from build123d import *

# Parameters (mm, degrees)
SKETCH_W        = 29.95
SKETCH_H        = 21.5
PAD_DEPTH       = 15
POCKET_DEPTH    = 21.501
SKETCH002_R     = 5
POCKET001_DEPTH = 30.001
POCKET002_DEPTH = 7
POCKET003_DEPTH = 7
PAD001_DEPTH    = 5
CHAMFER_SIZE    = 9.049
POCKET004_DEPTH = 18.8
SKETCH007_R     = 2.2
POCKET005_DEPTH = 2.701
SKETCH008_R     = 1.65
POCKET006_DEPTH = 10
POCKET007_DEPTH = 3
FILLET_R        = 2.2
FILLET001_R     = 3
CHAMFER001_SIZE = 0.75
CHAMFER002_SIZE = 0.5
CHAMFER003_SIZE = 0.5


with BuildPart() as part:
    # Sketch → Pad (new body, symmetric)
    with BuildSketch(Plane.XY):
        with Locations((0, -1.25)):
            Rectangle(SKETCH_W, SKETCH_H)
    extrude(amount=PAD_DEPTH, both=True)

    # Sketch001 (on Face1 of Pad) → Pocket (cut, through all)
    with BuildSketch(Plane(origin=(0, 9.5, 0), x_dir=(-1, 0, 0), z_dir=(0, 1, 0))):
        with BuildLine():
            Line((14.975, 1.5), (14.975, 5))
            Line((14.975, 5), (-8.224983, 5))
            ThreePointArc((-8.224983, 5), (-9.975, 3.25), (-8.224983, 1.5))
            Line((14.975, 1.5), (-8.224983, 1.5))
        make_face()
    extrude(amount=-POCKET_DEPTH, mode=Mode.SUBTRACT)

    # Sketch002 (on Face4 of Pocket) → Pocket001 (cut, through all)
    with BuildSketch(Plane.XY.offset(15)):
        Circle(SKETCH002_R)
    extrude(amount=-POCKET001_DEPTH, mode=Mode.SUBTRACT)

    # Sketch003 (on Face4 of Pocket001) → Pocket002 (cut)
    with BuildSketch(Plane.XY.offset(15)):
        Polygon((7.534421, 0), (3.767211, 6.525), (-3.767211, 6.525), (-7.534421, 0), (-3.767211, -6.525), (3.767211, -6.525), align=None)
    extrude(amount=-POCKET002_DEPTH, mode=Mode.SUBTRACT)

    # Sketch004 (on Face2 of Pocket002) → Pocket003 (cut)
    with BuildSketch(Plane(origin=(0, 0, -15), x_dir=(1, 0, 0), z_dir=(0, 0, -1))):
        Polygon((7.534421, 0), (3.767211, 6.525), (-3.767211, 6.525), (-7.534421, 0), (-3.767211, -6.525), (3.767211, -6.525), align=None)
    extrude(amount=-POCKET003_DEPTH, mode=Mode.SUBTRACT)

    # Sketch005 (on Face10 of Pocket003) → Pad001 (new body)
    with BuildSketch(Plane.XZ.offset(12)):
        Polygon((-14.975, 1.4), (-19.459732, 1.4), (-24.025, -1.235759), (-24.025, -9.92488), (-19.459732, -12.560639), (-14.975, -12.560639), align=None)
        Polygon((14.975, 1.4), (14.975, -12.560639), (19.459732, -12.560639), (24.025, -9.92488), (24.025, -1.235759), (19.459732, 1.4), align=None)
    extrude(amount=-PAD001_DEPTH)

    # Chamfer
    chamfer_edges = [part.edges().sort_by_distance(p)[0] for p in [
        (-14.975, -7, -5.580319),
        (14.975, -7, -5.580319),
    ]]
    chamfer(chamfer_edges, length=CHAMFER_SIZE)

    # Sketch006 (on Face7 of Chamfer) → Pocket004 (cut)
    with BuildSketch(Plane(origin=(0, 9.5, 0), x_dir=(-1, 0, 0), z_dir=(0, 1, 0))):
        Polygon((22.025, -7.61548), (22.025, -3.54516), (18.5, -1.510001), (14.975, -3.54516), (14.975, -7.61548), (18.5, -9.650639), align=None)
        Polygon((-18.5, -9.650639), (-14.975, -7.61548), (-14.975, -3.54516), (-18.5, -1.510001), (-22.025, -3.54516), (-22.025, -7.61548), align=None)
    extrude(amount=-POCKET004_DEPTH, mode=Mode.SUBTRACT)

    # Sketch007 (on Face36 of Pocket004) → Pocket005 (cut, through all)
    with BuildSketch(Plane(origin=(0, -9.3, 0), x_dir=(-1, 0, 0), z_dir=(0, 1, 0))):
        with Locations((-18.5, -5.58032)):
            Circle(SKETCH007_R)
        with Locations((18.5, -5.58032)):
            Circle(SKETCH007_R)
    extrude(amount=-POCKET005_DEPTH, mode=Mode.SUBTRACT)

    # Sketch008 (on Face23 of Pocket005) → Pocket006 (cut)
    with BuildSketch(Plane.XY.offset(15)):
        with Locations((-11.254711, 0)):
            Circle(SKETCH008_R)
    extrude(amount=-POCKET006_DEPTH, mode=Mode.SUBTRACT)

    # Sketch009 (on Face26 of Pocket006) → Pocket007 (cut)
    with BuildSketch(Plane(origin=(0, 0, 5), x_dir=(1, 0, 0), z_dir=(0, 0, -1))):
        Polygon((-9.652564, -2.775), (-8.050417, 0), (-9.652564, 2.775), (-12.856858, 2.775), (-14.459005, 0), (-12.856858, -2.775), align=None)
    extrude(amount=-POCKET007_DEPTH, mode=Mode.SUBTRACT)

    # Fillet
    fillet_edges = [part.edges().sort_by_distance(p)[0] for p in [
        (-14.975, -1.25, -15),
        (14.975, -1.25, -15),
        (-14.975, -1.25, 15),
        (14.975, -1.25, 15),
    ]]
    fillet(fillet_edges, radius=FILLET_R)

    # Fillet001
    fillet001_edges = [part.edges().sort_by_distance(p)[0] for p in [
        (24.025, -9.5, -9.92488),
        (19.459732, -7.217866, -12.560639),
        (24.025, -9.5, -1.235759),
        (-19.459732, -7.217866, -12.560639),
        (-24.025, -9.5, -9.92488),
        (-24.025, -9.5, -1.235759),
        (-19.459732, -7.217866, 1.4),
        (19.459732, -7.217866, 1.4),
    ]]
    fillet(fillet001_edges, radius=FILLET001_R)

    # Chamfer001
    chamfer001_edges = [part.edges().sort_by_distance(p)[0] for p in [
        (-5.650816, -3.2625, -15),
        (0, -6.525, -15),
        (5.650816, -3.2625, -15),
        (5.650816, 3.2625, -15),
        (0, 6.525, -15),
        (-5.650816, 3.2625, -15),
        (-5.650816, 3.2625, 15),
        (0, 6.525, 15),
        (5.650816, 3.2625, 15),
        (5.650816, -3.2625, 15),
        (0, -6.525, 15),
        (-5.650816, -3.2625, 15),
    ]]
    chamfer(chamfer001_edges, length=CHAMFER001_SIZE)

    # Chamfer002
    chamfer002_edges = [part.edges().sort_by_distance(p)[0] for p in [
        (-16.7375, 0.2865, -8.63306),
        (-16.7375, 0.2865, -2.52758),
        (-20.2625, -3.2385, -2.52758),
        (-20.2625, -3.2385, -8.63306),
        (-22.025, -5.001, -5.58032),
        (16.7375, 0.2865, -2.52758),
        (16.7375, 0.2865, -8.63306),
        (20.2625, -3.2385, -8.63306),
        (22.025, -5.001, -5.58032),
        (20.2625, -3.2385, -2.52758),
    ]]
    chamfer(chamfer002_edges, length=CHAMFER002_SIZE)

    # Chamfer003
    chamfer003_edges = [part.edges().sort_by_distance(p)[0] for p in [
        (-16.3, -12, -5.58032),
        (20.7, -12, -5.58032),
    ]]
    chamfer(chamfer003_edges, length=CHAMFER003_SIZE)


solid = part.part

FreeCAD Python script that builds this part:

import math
import FreeCAD as App
import Part
import Sketcher
Q = App.Units.Quantity


def edges_at(feature, points):
    """Names of the edges that pass closest to the given points."""
    edges = feature.Shape.Edges
    near = lambda p: min(range(len(edges)), key=lambda i: edges[i].distToShape(Part.Vertex(*p))[0])
    return sorted({f"Edge{near(p) + 1}" for p in points})


def add_polygon(sketch, points):
    """Adds a closed chain of lines whose ends are joined by coincident constraints."""
    first, n = sketch.GeometryCount, len(points)
    for a, b in zip(points, points[1:] + points[:1]):
        sketch.addGeometry(Part.LineSegment(App.Vector(*a, 0), App.Vector(*b, 0)), False)
    for i in range(n):
        sketch.addConstraint(Sketcher.Constraint("Coincident", first + i, 2, first + (i + 1) % n, 1))

doc = App.newDocument("Part")
params = doc.addObject("Spreadsheet::Sheet", "Params")
for row, (alias, value) in enumerate([
    ("sketch1_height", "21.5 mm"),
    ("sketch1_width", "29.95 mm"),
    ("pad1_length", "30 mm"),
    ("sketch2_radius", "1.75 mm"),
    ("sketch3_diameter", "10 mm"),
    ("pocket3_length", "7 mm"),
    ("pocket4_length", "7 mm"),
    ("pad2_length", "5 mm"),
    ("chamfer_size", "9.049 mm"),
    ("pocket5_length", "18.8 mm"),
    ("sketch8_diameter", "4.4 mm"),
    ("sketch9_diameter", "3.3 mm"),
    ("pocket7_length", "10 mm"),
    ("pocket8_length", "3 mm"),
    ("fillet_radius", "2.2 mm"),
    ("fillet2_radius", "3 mm"),
    ("chamfer2_size", "0.75 mm"),
    ("chamfer3_size", "0.5 mm"),
    ("chamfer4_size", "0.5 mm"),
], start=1):
    params.set(f"A{row}", alias)
    params.set(f"B{row}", "=" + value)
    params.setAlias(f"B{row}", alias)

body = doc.addObject("PartDesign::Body", "Body")

sketch1 = body.newObject("Sketcher::SketchObject", "Sketch")
sketch1.AttachmentSupport = (doc.getObject("XY_Plane"), [""])
sketch1.MapMode = "FlatFace"
add_polygon(sketch1, [(-15, 10), (-15, -12), (15, -12), (15, 10)])
sketch1.addConstraint([
    Sketcher.Constraint("Vertical", 0),
    Sketcher.Constraint("Horizontal", 1),
    Sketcher.Constraint("Vertical", 2),
    Sketcher.Constraint("Horizontal", 3),
    Sketcher.Constraint("DistanceY", 0, 2, 0, 1, 21.5),
    Sketcher.Constraint("DistanceY", 0, 2, -1, 1, 12.0),
    Sketcher.Constraint("DistanceX", 1, 1, 1, 2, 29.95),
    Sketcher.Constraint("DistanceX", 0, 2, -1, 1, 14.975),
])
sketch1.setExpression("Constraints[8]", "Params.sketch1_height")
sketch1.setExpression("Constraints[10]", "Params.sketch1_width")
pad1 = body.newObject("PartDesign::Pad", "Pad")
pad1.Profile = sketch1
pad1.setExpression("Length", "Params.pad1_length")
pad1.Midplane = True

sketch2 = body.newObject("Sketcher::SketchObject", "Sketch001")
sketch2.AttachmentSupport = (doc.getObject("XZ_Plane"), [""])
sketch2.MapMode = "FlatFace"
sketch2.AttachmentOffset = App.Placement(App.Vector(0, 0, -9.5), App.Rotation())
sketch2.addGeometry([
    Part.LineSegment(App.Vector(-15, 1.5, 0), App.Vector(-15, 5, 0)),
    Part.LineSegment(App.Vector(-15, 5, 0), App.Vector(8.2, 5, 0)),
    Part.ArcOfCircle(Part.Circle(App.Vector(8.2, 3.2, 0), App.Vector(0, 0, 1), 1.8), math.radians(-90), math.radians(90)),
    Part.LineSegment(App.Vector(8.2, 1.5, 0), App.Vector(-15, 1.5, 0)),
], False)
sketch2.addConstraint([
    Sketcher.Constraint("Coincident", 0, 2, 1, 1),
    Sketcher.Constraint("Coincident", 1, 2, 2, 2),
    Sketcher.Constraint("Coincident", 2, 1, 3, 1),
    Sketcher.Constraint("Coincident", 3, 2, 0, 1),
    Sketcher.Constraint("Vertical", 0),
    Sketcher.Constraint("Horizontal", 1),
    Sketcher.Constraint("Horizontal", 3),
    Sketcher.Constraint("Vertical", 1, 2, 2, 1),
    Sketcher.Constraint("Radius", 2, 1.75),
    Sketcher.Constraint("DistanceY", -1, 1, 0, 2, 5.0),
    Sketcher.Constraint("DistanceX", 0, 2, 2, 3, 23.2),
    Sketcher.Constraint("DistanceX", -1, 1, 2, 3, 8.225),
    Sketcher.Constraint("DistanceX", 1, 1, 1, 2, 23.199983),
])
sketch2.setExpression("Constraints[8]", "Params.sketch2_radius")
pocket1 = body.newObject("PartDesign::Pocket", "Pocket")
pocket1.Profile = sketch2
pocket1.Type = "ThroughAll"
pocket1.Reversed = True

sketch3 = body.newObject("Sketcher::SketchObject", "Sketch002")
sketch3.AttachmentSupport = (doc.getObject("XY_Plane"), [""])
sketch3.MapMode = "FlatFace"
sketch3.AttachmentOffset = App.Placement(App.Vector(0, 0, 15), App.Rotation())
sketch3.addGeometry(Part.Circle(App.Vector(0, 0, 0), App.Vector(0, 0, 1), 5), False)
sketch3.addConstraint([
    Sketcher.Constraint("Coincident", 0, 3, -1, 1),
    Sketcher.Constraint("Diameter", 0, 10.0),
])
sketch3.setExpression("Constraints[1]", "Params.sketch3_diameter")
pocket2 = body.newObject("PartDesign::Pocket", "Pocket001")
pocket2.Profile = sketch3
pocket2.Type = "ThroughAll"

sketch4 = body.newObject("Sketcher::SketchObject", "Sketch003")
sketch4.AttachmentSupport = (doc.getObject("XY_Plane"), [""])
sketch4.MapMode = "FlatFace"
sketch4.AttachmentOffset = App.Placement(App.Vector(0, 0, 15), App.Rotation())
add_polygon(sketch4, [(8, 0), (4, 7), (-4, 7), (-8, 0), (-4, -7), (4, -7)])
sketch4.addConstraint([
    Sketcher.Constraint("Horizontal", 1),
    Sketcher.Constraint("Horizontal", 4),
    Sketcher.Constraint("Symmetric", 0, 2, 3, 2, -1, 1),
    Sketcher.Constraint("Symmetric", 2, 2, 5, 2, -1, 1),
    Sketcher.Constraint("PointOnObject", 2, 2, -1),
    Sketcher.Constraint("Parallel", 2, 5),
    Sketcher.Constraint("Vertical", 1, 2, 3, 2),
    Sketcher.Constraint("Angle", 0, Q("119.999997 deg")),
    Sketcher.Constraint("DistanceY", 3, 2, 1, 2, 13.05),
    Sketcher.Constraint("DistanceX", 1, 2, 1, 1, 7.534422),
])
pocket3 = body.newObject("PartDesign::Pocket", "Pocket002")
pocket3.Profile = sketch4
pocket3.setExpression("Length", "Params.pocket3_length")

sketch5 = body.newObject("Sketcher::SketchObject", "Sketch004")
sketch5.AttachmentSupport = (doc.getObject("XY_Plane"), [""])
sketch5.MapMode = "FlatFace"
sketch5.AttachmentOffset = App.Placement(App.Vector(0, 0, -15), App.Rotation())
add_polygon(sketch5, [(8, 0), (4, -7), (-4, -7), (-8, 0), (-4, 7), (4, 7)])
sketch5.addConstraint([
    Sketcher.Constraint("Horizontal", 1),
    Sketcher.Constraint("Horizontal", 4),
    Sketcher.Constraint("Symmetric", 0, 2, 3, 2, -1, 1),
    Sketcher.Constraint("Symmetric", 2, 2, 5, 2, -1, 1),
    Sketcher.Constraint("PointOnObject", 2, 2, -1),
    Sketcher.Constraint("Parallel", 2, 5),
    Sketcher.Constraint("Vertical", 1, 2, 3, 2),
    Sketcher.Constraint("Angle", 0, Q("-119.999997 deg")),
    Sketcher.Constraint("DistanceY", 1, 2, 3, 2, 13.05),
    Sketcher.Constraint("DistanceX", 1, 2, 1, 1, 7.534422),
])
pocket4 = body.newObject("PartDesign::Pocket", "Pocket003")
pocket4.Profile = sketch5
pocket4.setExpression("Length", "Params.pocket4_length")
pocket4.Reversed = True

sketch6 = body.newObject("Sketcher::SketchObject", "Sketch005")
sketch6.AttachmentSupport = (doc.getObject("XZ_Plane"), [""])
sketch6.MapMode = "FlatFace"
sketch6.AttachmentOffset = App.Placement(App.Vector(0, 0, 12), App.Rotation())
add_polygon(sketch6, [(-15, 1.4), (-19.5, 1.4), (-24, -1.2), (-24, -9.9), (-19.5, -12.6), (-15, -12.6)])
add_polygon(sketch6, [(15, 1.4), (15, -12.6), (19.5, -12.6), (24, -9.9), (24, -1.2), (19.5, 1.4)])
sketch6.addConstraint([
    Sketcher.Constraint("Horizontal", 0),
    Sketcher.Constraint("Vertical", 2),
    Sketcher.Constraint("Horizontal", 4),
    Sketcher.Constraint("Vertical", 5),
    Sketcher.Constraint("Vertical", 6),
    Sketcher.Constraint("Horizontal", 7),
    Sketcher.Constraint("Vertical", 9),
    Sketcher.Constraint("Horizontal", 11),
    Sketcher.Constraint("Symmetric", 4, 2, 6, 2, -2),
    Sketcher.Constraint("Symmetric", 2, 2, 8, 2, -2),
    Sketcher.Constraint("Symmetric", 0, 2, 10, 2, -2),
    Sketcher.Constraint("Parallel", 1, 8),
    Sketcher.Constraint("Parallel", 3, 10),
    Sketcher.Constraint("Horizontal", 1, 2, 9, 2),
    Sketcher.Constraint("Vertical", 0, 2, 3, 2),
    Sketcher.Constraint("Angle", 1, Q("-149.999997 deg")),
    Sketcher.Constraint("DistanceX", 2, 2, 6, 2, 39.0),
    Sketcher.Constraint("DistanceY", -1, 1, 0, 2, 1.4),
    Sketcher.Constraint("DistanceX", 2, 2, 4, 2, 9.05),
    Sketcher.Constraint("DistanceX", 0, 2, 0, 1, 4.484732),
    Sketcher.Constraint("DistanceY", 2, 2, 2, 1, 8.689121),
])
pad2 = body.newObject("PartDesign::Pad", "Pad001")
pad2.Profile = sketch6
pad2.setExpression("Length", "Params.pad2_length")
pad2.Reversed = True
doc.recompute()

chamfer = body.newObject("PartDesign::Chamfer", "Chamfer")
chamfer.Base = (pad2, edges_at(pad2, [(-14.975, -7, -5.58), (14.975, -7, -5.58)]))
chamfer.setExpression("Size", "Params.chamfer_size")

sketch7 = body.newObject("Sketcher::SketchObject", "Sketch006")
sketch7.AttachmentSupport = (doc.getObject("XZ_Plane"), [""])
sketch7.MapMode = "FlatFace"
sketch7.AttachmentOffset = App.Placement(App.Vector(0, 0, -9.5), App.Rotation())
add_polygon(sketch7, [(-22, -7.6), (-22, -3.5), (-18.5, -1.5), (-15, -3.5), (-15, -7.6), (-18.5, -9.7)])
add_polygon(sketch7, [(18.5, -9.7), (15, -7.6), (15, -3.5), (18.5, -1.5), (22, -3.5), (22, -7.6)])
sketch7.addConstraint([
    Sketcher.Constraint("Vertical", 0),
    Sketcher.Constraint("Vertical", 3),
    Sketcher.Constraint("Vertical", 7),
    Sketcher.Constraint("Vertical", 10),
    Sketcher.Constraint("Symmetric", 3, 2, 6, 2, -2),
    Sketcher.Constraint("Symmetric", 1, 2, 8, 2, -2),
    Sketcher.Constraint("Symmetric", 0, 2, 9, 2, -2),
    Sketcher.Constraint("Symmetric", 4, 2, 11, 2, -2),
    Sketcher.Constraint("Parallel", 1, 4),
    Sketcher.Constraint("Parallel", 2, 5),
    Sketcher.Constraint("Parallel", 5, 6),
    Sketcher.Constraint("Parallel", 4, 8),
    Sketcher.Constraint("Parallel", 8, 11),
    Sketcher.Constraint("Horizontal", 0, 2, 2, 2),
    Sketcher.Constraint("Horizontal", 3, 2, 5, 2),
    Sketcher.Constraint("Angle", 1, Q("29.999991 deg")),
    Sketcher.Constraint("DistanceX", 5, 2, 6, 2, 37.0),
    Sketcher.Constraint("DistanceY", 1, 2, -1, 1, 1.510001),
    Sketcher.Constraint("DistanceX", 0, 2, 2, 2, 7.05),
    Sketcher.Constraint("DistanceY", 0, 1, 0, 2, 4.07032),
])
pocket5 = body.newObject("PartDesign::Pocket", "Pocket004")
pocket5.Profile = sketch7
pocket5.setExpression("Length", "Params.pocket5_length")
pocket5.Reversed = True

sketch8 = body.newObject("Sketcher::SketchObject", "Sketch007")
sketch8.AttachmentSupport = (doc.getObject("XZ_Plane"), [""])
sketch8.MapMode = "FlatFace"
sketch8.AttachmentOffset = App.Placement(App.Vector(0, 0, 9.3), App.Rotation())
sketch8.addGeometry([
    Part.Circle(App.Vector(18.5, -5.6, 0), App.Vector(0, 0, 1), 2.2),
    Part.Circle(App.Vector(-18.5, -5.6, 0), App.Vector(0, 0, 1), 2.2),
], False)
sketch8.addConstraint([
    Sketcher.Constraint("Equal", 0, 1),
    Sketcher.Constraint("Symmetric", 0, 3, 1, 3, -2),
    Sketcher.Constraint("Diameter", 0, 4.4),
    Sketcher.Constraint("DistanceX", 1, 3, 0, 3, 37.0),
    Sketcher.Constraint("DistanceY", 0, 3, -1, 1, 5.58032),
])
sketch8.setExpression("Constraints[2]", "Params.sketch8_diameter")
pocket6 = body.newObject("PartDesign::Pocket", "Pocket005")
pocket6.Profile = sketch8
pocket6.Type = "ThroughAll"
pocket6.Reversed = True

sketch9 = body.newObject("Sketcher::SketchObject", "Sketch008")
sketch9.AttachmentSupport = (doc.getObject("XY_Plane"), [""])
sketch9.MapMode = "FlatFace"
sketch9.AttachmentOffset = App.Placement(App.Vector(0, 0, 15), App.Rotation())
sketch9.addGeometry(Part.Circle(App.Vector(-11.3, 0, 0), App.Vector(0, 0, 1), 1.6), False)
sketch9.addConstraint([
    Sketcher.Constraint("PointOnObject", 0, 3, -1),
    Sketcher.Constraint("Diameter", 0, 3.3),
    Sketcher.Constraint("DistanceX", 0, 3, -1, 1, 11.254711),
])
sketch9.setExpression("Constraints[1]", "Params.sketch9_diameter")
pocket7 = body.newObject("PartDesign::Pocket", "Pocket006")
pocket7.Profile = sketch9
pocket7.setExpression("Length", "Params.pocket7_length")

sketch10 = body.newObject("Sketcher::SketchObject", "Sketch009")
sketch10.AttachmentSupport = (doc.getObject("XY_Plane"), [""])
sketch10.MapMode = "FlatFace"
sketch10.AttachmentOffset = App.Placement(App.Vector(0, 0, 5), App.Rotation())
add_polygon(sketch10, [(-9.7, 2.8), (-8.1, 0), (-9.7, -2.8), (-12.9, -2.8), (-14.5, 0), (-12.9, 2.8)])
sketch10.addConstraint([
    Sketcher.Constraint("Horizontal", 2),
    Sketcher.Constraint("Horizontal", 5),
    Sketcher.Constraint("Symmetric", 2, 2, 4, 2, -1),
    Sketcher.Constraint("PointOnObject", 0, 2, -1),
    Sketcher.Constraint("PointOnObject", 3, 2, -1),
    Sketcher.Constraint("Parallel", 0, 3),
    Sketcher.Constraint("Parallel", 1, 4),
    Sketcher.Constraint("Angle", 0, Q("-60 deg")),
    Sketcher.Constraint("DistanceY", 2, 2, 4, 2, 5.55),
    Sketcher.Constraint("DistanceX", 2, 2, 2, 1, 3.204294),
    Sketcher.Constraint("DistanceX", 2, 2, -1, 1, 12.856858),
])
pocket8 = body.newObject("PartDesign::Pocket", "Pocket007")
pocket8.Profile = sketch10
pocket8.setExpression("Length", "Params.pocket8_length")
pocket8.Reversed = True
doc.recompute()

fillet = body.newObject("PartDesign::Fillet", "Fillet")
fillet.Base = (pocket8, edges_at(pocket8, [
    (-14.975, -1.25, -15),
    (14.975, -1.25, -15),
    (-14.975, -1.25, 15),
    (14.975, -1.25, 15),
]))
fillet.setExpression("Radius", "Params.fillet_radius")
doc.recompute()

fillet2 = body.newObject("PartDesign::Fillet", "Fillet001")
fillet2.Base = (fillet, edges_at(fillet, [
    (24.025, -9.5, -9.925),
    (19.46, -7.218, -12.561),
    (24.025, -9.5, -1.236),
    (-19.46, -7.218, -12.561),
    (-24.025, -9.5, -9.925),
    (-24.025, -9.5, -1.236),
    (-19.46, -7.218, 1.4),
    (19.46, -7.218, 1.4),
]))
fillet2.setExpression("Radius", "Params.fillet2_radius")
doc.recompute()

chamfer2 = body.newObject("PartDesign::Chamfer", "Chamfer001")
chamfer2.Base = (fillet2, edges_at(fillet2, [
    (-5.651, -3.263, -15),
    (0, -6.525, -15),
    (5.651, -3.263, -15),
    (5.651, 3.263, -15),
    (0, 6.525, -15),
    (-5.651, 3.263, -15),
    (-5.651, 3.263, 15),
    (0, 6.525, 15),
    (5.651, 3.263, 15),
    (5.651, -3.263, 15),
    (0, -6.525, 15),
    (-5.651, -3.263, 15),
]))
chamfer2.setExpression("Size", "Params.chamfer2_size")
doc.recompute()

chamfer3 = body.newObject("PartDesign::Chamfer", "Chamfer002")
chamfer3.Base = (chamfer2, edges_at(chamfer2, [
    (-16.738, 0.286, -8.633),
    (-16.738, 0.286, -2.528),
    (-20.262, -3.239, -2.528),
    (-20.262, -3.239, -8.633),
    (-22.025, -5.001, -5.58),
    (16.738, 0.286, -2.528),
    (16.738, 0.286, -8.633),
    (20.262, -3.239, -8.633),
    (22.025, -5.001, -5.58),
    (20.262, -3.239, -2.528),
]))
chamfer3.setExpression("Size", "Params.chamfer3_size")
doc.recompute()

chamfer4 = body.newObject("PartDesign::Chamfer", "Chamfer003")
chamfer4.Base = (chamfer3, edges_at(chamfer3, [(-16.3, -12, -5.58), (20.7, -12, -5.58)]))
chamfer4.setExpression("Size", "Params.chamfer4_size")

doc.recompute()
